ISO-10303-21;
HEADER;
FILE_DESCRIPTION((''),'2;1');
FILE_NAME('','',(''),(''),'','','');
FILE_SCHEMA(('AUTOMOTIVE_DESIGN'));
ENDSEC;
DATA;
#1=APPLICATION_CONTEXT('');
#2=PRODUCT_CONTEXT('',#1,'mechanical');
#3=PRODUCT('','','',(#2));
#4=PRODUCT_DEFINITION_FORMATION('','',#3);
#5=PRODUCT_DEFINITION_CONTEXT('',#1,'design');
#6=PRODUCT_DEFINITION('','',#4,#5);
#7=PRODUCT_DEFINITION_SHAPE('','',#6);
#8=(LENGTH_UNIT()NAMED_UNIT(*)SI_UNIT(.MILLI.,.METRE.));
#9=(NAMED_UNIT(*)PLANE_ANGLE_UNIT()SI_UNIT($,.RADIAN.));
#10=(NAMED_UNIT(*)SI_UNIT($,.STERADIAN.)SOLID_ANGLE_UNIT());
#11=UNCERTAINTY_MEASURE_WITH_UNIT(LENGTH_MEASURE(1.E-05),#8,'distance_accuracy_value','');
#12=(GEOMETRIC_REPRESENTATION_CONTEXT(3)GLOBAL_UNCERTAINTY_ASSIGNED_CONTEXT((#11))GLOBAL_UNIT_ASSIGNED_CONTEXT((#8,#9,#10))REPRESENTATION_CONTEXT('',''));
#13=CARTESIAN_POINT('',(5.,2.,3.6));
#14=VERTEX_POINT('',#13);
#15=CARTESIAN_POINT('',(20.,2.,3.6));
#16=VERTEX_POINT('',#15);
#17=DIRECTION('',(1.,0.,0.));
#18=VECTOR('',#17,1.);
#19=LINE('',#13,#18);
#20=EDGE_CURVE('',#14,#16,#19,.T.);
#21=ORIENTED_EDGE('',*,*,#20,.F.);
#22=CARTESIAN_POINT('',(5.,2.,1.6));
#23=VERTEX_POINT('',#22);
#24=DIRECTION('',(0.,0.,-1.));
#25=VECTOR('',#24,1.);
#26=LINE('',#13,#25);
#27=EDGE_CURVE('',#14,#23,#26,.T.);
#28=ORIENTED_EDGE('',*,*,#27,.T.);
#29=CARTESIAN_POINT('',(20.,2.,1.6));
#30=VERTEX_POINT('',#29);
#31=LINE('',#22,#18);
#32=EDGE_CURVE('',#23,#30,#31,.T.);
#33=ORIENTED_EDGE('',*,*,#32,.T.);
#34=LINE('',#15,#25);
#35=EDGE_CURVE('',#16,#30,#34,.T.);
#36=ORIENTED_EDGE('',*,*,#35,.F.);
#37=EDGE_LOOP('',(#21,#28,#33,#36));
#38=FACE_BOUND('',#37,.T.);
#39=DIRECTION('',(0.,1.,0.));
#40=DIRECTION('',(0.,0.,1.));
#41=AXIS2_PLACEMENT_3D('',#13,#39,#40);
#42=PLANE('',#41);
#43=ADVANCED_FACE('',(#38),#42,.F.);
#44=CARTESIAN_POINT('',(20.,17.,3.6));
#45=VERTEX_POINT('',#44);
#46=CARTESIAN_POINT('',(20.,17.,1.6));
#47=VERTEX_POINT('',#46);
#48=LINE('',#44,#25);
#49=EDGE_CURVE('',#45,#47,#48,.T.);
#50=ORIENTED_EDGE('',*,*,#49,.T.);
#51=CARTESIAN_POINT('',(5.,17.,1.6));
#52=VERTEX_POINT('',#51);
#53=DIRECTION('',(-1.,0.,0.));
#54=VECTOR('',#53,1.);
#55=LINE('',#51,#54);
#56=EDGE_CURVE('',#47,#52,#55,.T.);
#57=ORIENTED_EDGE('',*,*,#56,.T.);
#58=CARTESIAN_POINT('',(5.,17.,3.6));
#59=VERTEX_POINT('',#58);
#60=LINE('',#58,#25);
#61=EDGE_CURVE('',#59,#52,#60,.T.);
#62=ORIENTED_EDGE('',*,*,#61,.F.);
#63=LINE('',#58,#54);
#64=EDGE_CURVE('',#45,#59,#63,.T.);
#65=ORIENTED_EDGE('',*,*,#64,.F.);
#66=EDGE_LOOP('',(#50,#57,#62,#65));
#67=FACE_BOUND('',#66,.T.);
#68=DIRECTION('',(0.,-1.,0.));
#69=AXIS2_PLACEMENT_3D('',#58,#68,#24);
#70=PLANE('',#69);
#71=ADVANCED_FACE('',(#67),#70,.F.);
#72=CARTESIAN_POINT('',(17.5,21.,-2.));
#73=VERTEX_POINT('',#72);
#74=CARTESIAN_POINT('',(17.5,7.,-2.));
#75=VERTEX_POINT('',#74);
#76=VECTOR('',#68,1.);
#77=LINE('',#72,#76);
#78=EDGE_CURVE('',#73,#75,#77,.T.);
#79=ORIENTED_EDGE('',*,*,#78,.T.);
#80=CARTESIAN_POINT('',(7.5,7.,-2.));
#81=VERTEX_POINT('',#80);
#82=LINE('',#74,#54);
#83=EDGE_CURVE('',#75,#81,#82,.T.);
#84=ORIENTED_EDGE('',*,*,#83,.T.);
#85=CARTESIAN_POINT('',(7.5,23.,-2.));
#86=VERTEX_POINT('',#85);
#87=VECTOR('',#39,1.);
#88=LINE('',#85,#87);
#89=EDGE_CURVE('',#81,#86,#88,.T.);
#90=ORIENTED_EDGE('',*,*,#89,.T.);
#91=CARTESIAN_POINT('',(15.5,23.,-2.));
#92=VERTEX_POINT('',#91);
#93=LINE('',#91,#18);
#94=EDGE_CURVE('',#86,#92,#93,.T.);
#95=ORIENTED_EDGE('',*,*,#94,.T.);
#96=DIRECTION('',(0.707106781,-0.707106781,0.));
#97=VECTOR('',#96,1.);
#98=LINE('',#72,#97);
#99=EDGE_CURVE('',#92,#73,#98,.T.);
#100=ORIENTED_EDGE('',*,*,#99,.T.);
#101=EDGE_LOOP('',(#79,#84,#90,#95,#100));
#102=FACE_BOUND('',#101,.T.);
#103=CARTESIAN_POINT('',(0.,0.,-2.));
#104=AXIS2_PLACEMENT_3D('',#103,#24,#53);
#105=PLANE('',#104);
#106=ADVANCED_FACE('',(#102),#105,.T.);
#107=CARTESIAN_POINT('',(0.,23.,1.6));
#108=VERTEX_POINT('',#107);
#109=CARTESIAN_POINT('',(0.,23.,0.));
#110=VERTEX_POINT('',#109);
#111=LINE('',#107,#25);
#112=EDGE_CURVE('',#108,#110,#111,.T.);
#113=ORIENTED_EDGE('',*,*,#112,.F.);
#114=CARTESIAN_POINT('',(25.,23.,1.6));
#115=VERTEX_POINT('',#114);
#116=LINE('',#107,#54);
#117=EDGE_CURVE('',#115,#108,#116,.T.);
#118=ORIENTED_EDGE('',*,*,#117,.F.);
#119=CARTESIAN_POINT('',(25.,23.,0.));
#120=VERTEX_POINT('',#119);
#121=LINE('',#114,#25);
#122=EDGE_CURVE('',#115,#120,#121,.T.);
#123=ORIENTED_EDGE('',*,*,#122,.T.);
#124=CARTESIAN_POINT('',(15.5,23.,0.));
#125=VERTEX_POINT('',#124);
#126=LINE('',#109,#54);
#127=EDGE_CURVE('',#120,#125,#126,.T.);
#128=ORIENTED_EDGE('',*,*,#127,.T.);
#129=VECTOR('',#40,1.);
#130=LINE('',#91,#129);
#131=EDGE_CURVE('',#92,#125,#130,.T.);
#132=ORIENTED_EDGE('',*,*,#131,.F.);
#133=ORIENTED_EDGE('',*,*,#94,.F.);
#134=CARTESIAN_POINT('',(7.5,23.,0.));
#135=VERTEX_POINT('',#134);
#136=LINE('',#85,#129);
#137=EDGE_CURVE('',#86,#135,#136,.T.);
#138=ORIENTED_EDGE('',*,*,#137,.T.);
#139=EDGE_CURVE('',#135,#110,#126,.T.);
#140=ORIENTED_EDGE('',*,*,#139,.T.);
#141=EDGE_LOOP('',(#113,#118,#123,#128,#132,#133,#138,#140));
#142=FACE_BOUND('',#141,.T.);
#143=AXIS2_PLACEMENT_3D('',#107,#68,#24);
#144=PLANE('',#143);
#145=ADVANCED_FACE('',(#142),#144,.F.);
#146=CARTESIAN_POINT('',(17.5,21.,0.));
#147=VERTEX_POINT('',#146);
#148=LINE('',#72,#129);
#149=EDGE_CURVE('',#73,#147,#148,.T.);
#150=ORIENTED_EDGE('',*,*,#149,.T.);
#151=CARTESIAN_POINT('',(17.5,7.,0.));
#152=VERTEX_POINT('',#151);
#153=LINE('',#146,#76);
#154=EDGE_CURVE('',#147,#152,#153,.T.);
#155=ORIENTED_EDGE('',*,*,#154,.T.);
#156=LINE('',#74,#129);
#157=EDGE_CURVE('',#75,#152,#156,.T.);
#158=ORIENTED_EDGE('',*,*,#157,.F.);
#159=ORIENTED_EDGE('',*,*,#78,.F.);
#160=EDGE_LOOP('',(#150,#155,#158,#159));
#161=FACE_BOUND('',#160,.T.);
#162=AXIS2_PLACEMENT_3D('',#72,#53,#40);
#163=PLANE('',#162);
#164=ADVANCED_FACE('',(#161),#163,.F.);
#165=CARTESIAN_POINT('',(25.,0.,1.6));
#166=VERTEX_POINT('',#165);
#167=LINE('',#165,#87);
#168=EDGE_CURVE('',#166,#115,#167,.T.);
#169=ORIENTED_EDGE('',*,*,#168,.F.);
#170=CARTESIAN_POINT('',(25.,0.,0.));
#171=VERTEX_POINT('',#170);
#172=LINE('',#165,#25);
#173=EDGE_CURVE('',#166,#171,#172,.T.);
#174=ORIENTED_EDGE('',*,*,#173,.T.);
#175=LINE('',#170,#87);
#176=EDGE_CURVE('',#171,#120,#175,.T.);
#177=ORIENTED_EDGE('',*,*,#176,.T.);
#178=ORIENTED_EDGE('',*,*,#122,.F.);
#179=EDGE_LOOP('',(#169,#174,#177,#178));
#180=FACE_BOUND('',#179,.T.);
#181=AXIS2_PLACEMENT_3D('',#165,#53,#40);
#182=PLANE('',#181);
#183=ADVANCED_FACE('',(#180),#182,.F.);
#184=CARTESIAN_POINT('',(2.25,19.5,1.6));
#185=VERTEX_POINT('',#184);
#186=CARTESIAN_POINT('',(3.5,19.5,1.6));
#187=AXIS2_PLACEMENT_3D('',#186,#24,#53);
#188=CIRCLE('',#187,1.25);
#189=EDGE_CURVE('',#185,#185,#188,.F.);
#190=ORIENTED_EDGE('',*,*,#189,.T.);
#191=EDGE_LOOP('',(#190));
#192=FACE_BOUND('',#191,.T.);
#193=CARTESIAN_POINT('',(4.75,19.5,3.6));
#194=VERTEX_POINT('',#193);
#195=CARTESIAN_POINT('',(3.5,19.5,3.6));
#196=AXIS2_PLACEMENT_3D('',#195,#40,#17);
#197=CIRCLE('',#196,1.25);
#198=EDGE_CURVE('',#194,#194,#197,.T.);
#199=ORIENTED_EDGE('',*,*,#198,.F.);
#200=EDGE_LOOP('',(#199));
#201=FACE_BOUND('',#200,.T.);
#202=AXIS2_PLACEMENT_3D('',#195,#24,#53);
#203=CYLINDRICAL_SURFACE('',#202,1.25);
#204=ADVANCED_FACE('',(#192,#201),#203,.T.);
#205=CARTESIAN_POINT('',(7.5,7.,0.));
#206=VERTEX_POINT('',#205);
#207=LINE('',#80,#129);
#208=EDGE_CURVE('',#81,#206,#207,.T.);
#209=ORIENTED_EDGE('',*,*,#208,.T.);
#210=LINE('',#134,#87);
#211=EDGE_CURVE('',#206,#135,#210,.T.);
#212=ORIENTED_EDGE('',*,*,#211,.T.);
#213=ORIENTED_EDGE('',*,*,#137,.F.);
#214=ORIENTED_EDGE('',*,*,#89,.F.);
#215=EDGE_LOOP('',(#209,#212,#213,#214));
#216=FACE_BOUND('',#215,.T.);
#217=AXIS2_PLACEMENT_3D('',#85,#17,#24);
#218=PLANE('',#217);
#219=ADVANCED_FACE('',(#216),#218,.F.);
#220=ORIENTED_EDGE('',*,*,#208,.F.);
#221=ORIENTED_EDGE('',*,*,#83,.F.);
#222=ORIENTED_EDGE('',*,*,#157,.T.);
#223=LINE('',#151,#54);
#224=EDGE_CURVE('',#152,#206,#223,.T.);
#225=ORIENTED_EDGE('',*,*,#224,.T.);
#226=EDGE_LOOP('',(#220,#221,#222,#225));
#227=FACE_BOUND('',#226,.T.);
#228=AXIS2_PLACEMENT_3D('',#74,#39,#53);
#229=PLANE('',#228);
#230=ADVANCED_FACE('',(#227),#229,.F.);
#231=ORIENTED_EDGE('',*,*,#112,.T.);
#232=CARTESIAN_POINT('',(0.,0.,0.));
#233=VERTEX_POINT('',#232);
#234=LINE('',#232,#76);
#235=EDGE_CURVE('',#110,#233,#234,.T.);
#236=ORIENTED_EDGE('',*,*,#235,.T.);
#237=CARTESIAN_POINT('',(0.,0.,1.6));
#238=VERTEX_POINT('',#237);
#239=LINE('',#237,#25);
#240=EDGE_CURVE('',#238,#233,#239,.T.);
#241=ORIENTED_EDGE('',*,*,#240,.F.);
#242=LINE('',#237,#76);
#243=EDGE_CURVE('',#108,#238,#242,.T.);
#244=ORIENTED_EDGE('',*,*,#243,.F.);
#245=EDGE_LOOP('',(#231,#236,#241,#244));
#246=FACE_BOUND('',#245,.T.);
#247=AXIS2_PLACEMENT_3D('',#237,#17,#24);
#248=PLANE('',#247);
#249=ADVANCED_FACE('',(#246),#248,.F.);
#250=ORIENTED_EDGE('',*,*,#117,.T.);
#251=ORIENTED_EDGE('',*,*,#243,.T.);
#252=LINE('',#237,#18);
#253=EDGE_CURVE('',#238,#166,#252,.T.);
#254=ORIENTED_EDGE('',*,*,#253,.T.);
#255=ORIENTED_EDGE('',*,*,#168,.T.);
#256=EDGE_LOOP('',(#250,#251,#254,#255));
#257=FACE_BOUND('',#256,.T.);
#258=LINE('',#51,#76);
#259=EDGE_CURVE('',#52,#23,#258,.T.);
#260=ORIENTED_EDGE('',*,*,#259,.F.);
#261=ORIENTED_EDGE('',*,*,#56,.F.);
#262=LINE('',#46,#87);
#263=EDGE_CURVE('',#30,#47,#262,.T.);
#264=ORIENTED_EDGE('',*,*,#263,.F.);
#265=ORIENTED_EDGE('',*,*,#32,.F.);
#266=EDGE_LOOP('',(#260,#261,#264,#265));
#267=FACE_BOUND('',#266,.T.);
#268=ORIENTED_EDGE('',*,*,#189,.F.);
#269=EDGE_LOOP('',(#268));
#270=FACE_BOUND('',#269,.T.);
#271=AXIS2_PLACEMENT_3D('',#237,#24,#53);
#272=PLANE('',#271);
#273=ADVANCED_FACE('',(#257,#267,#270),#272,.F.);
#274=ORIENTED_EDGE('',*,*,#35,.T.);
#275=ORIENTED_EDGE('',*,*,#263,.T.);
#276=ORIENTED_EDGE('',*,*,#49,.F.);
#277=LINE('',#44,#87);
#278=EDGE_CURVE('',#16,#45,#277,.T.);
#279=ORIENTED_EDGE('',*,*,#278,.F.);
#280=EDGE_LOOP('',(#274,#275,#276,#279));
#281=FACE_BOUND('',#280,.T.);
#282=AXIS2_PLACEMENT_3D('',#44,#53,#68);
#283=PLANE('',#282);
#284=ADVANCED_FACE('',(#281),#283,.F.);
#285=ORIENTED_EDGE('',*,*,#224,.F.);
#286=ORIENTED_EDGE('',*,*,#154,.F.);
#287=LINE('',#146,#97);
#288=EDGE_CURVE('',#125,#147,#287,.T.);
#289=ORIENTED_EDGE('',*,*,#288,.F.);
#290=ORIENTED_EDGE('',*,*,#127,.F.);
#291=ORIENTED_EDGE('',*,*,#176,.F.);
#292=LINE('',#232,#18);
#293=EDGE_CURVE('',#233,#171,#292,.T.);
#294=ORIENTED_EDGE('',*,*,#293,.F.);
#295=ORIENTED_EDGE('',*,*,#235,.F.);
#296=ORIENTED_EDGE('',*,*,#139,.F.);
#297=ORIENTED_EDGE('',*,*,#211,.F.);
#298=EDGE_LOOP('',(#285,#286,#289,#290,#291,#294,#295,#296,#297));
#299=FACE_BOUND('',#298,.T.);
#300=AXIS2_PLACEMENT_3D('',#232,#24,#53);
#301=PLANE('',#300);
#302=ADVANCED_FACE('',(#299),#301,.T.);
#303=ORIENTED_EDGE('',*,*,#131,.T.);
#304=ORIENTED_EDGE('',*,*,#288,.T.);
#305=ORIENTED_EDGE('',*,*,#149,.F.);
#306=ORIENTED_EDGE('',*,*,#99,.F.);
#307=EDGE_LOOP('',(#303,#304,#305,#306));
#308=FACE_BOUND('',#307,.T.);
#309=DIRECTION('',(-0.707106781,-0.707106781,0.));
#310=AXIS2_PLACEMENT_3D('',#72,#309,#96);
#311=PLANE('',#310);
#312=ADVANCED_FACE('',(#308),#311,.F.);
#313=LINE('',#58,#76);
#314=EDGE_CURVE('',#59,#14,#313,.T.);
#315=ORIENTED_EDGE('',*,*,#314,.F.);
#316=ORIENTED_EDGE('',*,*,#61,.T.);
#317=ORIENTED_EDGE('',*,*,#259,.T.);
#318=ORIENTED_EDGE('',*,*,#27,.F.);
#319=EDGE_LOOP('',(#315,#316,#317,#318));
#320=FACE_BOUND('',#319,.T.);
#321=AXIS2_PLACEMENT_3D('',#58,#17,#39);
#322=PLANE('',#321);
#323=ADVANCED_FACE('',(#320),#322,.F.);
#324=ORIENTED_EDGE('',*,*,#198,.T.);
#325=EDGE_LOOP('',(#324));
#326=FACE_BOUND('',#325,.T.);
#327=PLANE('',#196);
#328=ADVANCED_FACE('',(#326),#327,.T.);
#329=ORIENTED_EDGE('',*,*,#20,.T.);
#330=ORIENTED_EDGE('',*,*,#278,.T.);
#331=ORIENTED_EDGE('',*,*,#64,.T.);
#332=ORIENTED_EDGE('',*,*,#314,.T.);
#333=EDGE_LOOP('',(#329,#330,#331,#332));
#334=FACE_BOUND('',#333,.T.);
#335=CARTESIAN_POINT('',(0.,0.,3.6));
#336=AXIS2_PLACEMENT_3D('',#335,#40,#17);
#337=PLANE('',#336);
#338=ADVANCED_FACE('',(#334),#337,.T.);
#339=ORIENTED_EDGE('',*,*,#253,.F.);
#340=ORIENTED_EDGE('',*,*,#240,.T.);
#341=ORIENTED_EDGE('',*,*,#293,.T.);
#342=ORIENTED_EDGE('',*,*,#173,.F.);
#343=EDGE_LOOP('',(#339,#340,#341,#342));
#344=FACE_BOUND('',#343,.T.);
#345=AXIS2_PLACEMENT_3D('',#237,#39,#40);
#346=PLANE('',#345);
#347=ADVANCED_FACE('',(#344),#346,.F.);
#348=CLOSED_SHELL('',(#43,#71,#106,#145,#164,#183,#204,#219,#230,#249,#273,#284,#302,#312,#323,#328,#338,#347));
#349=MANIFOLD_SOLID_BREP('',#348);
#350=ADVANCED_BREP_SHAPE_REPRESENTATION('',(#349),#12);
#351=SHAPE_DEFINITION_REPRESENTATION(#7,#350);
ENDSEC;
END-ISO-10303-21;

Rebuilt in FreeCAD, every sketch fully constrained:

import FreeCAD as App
import Part
import Sketcher
from FreeCAD import Vector

doc = App.newDocument("Part")
body = doc.addObject("PartDesign::Body", "Body")

# Sketch on XY plane
sketch1 = body.newObject("Sketcher::SketchObject", "Sketch")
sketch1.AttachmentSupport = (doc.getObject("XY_Plane"), [""])
sketch1.MapMode = "FlatFace"
sketch1.addGeometry([
    Part.LineSegment(Vector(0, 23, 0), Vector(0, 0, 0)),
    Part.LineSegment(Vector(0, 0, 0), Vector(25, 0, 0)),
    Part.LineSegment(Vector(25, 0, 0), Vector(25, 23, 0)),
    Part.LineSegment(Vector(25, 23, 0), Vector(0, 23, 0)),
], False)
sketch1.addConstraint([
    Sketcher.Constraint("Coincident", 0, 2, 1, 1),
    Sketcher.Constraint("Coincident", 1, 2, 2, 1),
    Sketcher.Constraint("Coincident", 2, 2, 3, 1),
    Sketcher.Constraint("Coincident", 3, 2, 0, 1),
    Sketcher.Constraint("Vertical", 0),
    Sketcher.Constraint("Horizontal", 1),
    Sketcher.Constraint("Vertical", 2),
    Sketcher.Constraint("Horizontal", 3),
    Sketcher.Constraint("Coincident", 0, 2, -1, 1),
    Sketcher.Constraint("DistanceX", 1, 1, 1, 2, 25.0),
    Sketcher.Constraint("DistanceY", 0, 2, 0, 1, 23.0),
])
pad1 = body.newObject("PartDesign::Pad", "Pad")
pad1.Profile = sketch1
pad1.Length = 1.6

# Sketch on XY plane
sketch2 = body.newObject("Sketcher::SketchObject", "Sketch001")
sketch2.AttachmentSupport = (doc.getObject("XY_Plane"), [""])
sketch2.MapMode = "FlatFace"
sketch2.AttachmentOffset = App.Placement(Vector(0, 0, 1.6), App.Rotation())
sketch2.addGeometry([
    Part.Circle(Vector(3.5, 19.5, 0), Vector(0, 0, 1), 1.25),  # 0
    Part.LineSegment(Vector(5, 17, 0), Vector(5, 2, 0)),  # 1
    Part.LineSegment(Vector(5, 2, 0), Vector(20, 2, 0)),  # 2
    Part.LineSegment(Vector(20, 2, 0), Vector(20, 17, 0)),  # 3
    Part.LineSegment(Vector(20, 17, 0), Vector(5, 17, 0)),  # 4
], False)
sketch2.addConstraint([
    Sketcher.Constraint("Coincident", 1, 2, 2, 1),
    Sketcher.Constraint("Coincident", 2, 2, 3, 1),
    Sketcher.Constraint("Coincident", 3, 2, 4, 1),
    Sketcher.Constraint("Coincident", 4, 2, 1, 1),
    Sketcher.Constraint("Vertical", 1),
    Sketcher.Constraint("Horizontal", 2),
    Sketcher.Constraint("Vertical", 3),
    Sketcher.Constraint("Horizontal", 4),
    Sketcher.Constraint("Equal", 4, 1),
    Sketcher.Constraint("Diameter", 0, 2.5),
    Sketcher.Constraint("DistanceX", 2, 1, 2, 2, 15.0),
    Sketcher.Constraint("DistanceX", -1, 1, 1, 2, 5.0),
    Sketcher.Constraint("DistanceY", -1, 1, 1, 2, 2.0),
    Sketcher.Constraint("DistanceX", -1, 1, 0, 3, 3.5),
    Sketcher.Constraint("DistanceY", -1, 1, 0, 3, 19.5),
])
pad2 = body.newObject("PartDesign::Pad", "Pad001")
pad2.Profile = sketch2
pad2.Length = 2

# Sketch on XY plane
sketch3 = body.newObject("Sketcher::SketchObject", "Sketch002")
sketch3.AttachmentSupport = (doc.getObject("XY_Plane"), [""])
sketch3.MapMode = "FlatFace"
sketch3.addGeometry([
    Part.LineSegment(Vector(7.5, 23, 0), Vector(15.5, 23, 0)),  # 0
    Part.LineSegment(Vector(15.5, 23, 0), Vector(17.5, 21, 0)),  # 1
    Part.LineSegment(Vector(17.5, 21, 0), Vector(17.5, 7, 0)),  # 2
    Part.LineSegment(Vector(17.5, 7, 0), Vector(7.5, 7, 0)),  # 3
    Part.LineSegment(Vector(7.5, 7, 0), Vector(7.5, 23, 0)),  # 4
], False)
sketch3.addConstraint([
    Sketcher.Constraint("Coincident", 0, 2, 1, 1),
    Sketcher.Constraint("Coincident", 1, 2, 2, 1),
    Sketcher.Constraint("Coincident", 2, 2, 3, 1),
    Sketcher.Constraint("Coincident", 3, 2, 4, 1),
    Sketcher.Constraint("Coincident", 4, 2, 0, 1),
    Sketcher.Constraint("Horizontal", 0),
    Sketcher.Constraint("Vertical", 2),
    Sketcher.Constraint("Horizontal", 3),
    Sketcher.Constraint("Vertical", 4),
    Sketcher.Constraint("DistanceX", 0, 1, 0, 2, 8.0),
    Sketcher.Constraint("DistanceX", 3, 2, 3, 1, 10.0),
    Sketcher.Constraint("DistanceY", 2, 2, 2, 1, 14.0),
    Sketcher.Constraint("DistanceY", 4, 1, 4, 2, 16.0),
    Sketcher.Constraint("DistanceY", -1, 1, 0, 2, 23.0),
    Sketcher.Constraint("DistanceX", -1, 1, 0, 2, 15.5),
])
pad3 = body.newObject("PartDesign::Pad", "Pad002")
pad3.Profile = sketch3
pad3.Length = 2
pad3.Reversed = True

doc.recompute()
